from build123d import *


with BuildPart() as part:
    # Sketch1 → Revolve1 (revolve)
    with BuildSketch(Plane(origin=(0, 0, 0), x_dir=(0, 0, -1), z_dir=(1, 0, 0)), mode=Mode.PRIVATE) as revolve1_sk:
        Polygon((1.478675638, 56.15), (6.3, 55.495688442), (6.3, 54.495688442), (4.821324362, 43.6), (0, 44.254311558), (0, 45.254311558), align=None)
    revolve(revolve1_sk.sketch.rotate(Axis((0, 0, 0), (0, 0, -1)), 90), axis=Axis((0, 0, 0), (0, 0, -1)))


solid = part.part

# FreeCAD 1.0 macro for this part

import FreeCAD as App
import Part
import Sketcher
Q = App.Units.Quantity


def add_polygon(sketch, points):
    """Adds a closed chain of lines whose ends are joined by coincident constraints."""
    first, n = sketch.GeometryCount, len(points)
    for a, b in zip(points, points[1:] + points[:1]):
        sketch.addGeometry(Part.LineSegment(App.Vector(*a, 0), App.Vector(*b, 0)), False)
    for i in range(n):
        sketch.addConstraint(Sketcher.Constraint("Coincident", first + i, 2, first + (i + 1) % n, 1))

doc = App.newDocument("Part")
body = doc.addObject("PartDesign::Body", "Body")

# Sketch on YZ plane
sketch1 = body.newObject("Sketcher::SketchObject", "Sketch")
sketch1.AttachmentSupport = (doc.getObject("YZ_Plane"), [""])
sketch1.MapMode = "FlatFace"
add_polygon(sketch1, [(55.5, -6.3), (56.1, -1.5), (45.3, 0), (44.3, 0), (43.6, -4.8), (54.5, -6.3)])  # lines 0-5
sketch1.addConstraint(Sketcher.Constraint("Horizontal", 2))
sketch1.addConstraint(Sketcher.Constraint("Horizontal", 5))
sketch1.addConstraint(Sketcher.Constraint("PointOnObject", 1, 2, -1))
sketch1.addConstraint(Sketcher.Constraint("Perpendicular", 0, 1))
sketch1.addConstraint(Sketcher.Constraint("Perpendicular", 1, 3))
sketch1.addConstraint(Sketcher.Constraint("Perpendicular", 3, 4))
sketch1.addConstraint(Sketcher.Constraint("Equal", 2, 5))
sketch1.addConstraint(Sketcher.Constraint("DistanceX", 2, 2, 2, 1, Q("1 mm")))
sketch1.addConstraint(Sketcher.Constraint("DistanceX", -1, 1, 3, 2, Q("43.6 mm")))
sketch1.addConstraint(Sketcher.Constraint("DistanceY", 4, 2, -1, 1, Q("6.3 mm")))
sketch1.addConstraint(Sketcher.Constraint("DistanceX", -1, 1, 0, 2, Q("56.15 mm")))
sketch1.addConstraint(Sketcher.Constraint("Distance", 0, Q("4.865521 mm")))
revolution = body.newObject("PartDesign::Revolution", "Revolution")
revolution.Profile = sketch1
revolution.ReferenceAxis = (sketch1, ["V_Axis"])
revolution.Angle = 360

doc.recompute()
